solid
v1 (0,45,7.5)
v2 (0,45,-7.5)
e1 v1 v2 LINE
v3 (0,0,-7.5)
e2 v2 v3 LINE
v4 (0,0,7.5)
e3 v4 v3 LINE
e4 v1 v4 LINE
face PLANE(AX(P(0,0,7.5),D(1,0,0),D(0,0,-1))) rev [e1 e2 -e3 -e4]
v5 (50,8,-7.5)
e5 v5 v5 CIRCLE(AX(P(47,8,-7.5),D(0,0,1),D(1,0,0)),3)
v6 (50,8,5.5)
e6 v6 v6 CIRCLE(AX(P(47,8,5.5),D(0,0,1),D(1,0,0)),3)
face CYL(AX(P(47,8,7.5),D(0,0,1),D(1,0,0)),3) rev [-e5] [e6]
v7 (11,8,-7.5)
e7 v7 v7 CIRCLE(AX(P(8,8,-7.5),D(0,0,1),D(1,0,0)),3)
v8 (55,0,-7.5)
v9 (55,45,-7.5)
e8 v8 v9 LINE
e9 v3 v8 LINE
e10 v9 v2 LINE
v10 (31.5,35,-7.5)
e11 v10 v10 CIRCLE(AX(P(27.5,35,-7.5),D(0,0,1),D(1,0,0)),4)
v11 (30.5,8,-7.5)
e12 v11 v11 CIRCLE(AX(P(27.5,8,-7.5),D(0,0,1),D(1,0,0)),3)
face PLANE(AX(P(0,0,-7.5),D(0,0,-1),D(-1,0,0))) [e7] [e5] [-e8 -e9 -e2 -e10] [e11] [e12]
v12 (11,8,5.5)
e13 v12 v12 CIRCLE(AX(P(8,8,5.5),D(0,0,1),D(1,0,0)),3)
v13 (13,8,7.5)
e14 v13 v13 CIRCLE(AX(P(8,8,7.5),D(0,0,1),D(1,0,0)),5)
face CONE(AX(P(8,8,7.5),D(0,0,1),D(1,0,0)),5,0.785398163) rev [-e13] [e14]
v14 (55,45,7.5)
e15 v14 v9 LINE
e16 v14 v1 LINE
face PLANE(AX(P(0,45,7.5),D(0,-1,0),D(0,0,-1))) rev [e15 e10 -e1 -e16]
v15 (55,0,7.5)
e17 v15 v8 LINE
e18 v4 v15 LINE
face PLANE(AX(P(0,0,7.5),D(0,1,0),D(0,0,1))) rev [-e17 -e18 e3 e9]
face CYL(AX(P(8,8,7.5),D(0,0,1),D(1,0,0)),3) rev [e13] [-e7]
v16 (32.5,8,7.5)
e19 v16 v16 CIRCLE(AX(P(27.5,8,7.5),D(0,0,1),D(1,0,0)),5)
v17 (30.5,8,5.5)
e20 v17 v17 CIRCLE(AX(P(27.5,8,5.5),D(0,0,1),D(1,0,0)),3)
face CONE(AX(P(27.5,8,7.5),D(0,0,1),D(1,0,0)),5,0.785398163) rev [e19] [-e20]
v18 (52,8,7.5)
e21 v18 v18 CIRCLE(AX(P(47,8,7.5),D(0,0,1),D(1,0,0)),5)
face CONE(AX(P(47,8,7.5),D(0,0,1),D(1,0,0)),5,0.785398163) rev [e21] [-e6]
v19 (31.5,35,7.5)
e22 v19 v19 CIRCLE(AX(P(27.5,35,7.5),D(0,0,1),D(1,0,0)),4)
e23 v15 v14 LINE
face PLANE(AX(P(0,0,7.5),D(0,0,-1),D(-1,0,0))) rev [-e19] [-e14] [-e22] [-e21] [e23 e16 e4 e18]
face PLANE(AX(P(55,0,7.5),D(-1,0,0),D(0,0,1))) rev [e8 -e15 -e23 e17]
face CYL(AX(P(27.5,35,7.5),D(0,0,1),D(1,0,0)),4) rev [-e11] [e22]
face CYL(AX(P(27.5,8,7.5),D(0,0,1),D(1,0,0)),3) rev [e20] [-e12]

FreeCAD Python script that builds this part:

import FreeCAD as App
import Part
import Sketcher

V = App.Vector


def add_polygon(sketch, points):
    """Adds a closed chain of lines whose ends are joined by coincident constraints."""
    first, n = sketch.GeometryCount, len(points)
    for a, b in zip(points, points[1:] + points[:1]):
        sketch.addGeometry(Part.LineSegment(App.Vector(*a, 0), App.Vector(*b, 0)), False)
    for i in range(n):
        sketch.addConstraint(Sketcher.Constraint("Coincident", first + i, 2, first + (i + 1) % n, 1))

doc = App.newDocument("Part")
body = doc.addObject("PartDesign::Body", "Body")

sketch1 = doc.addObject("Sketcher::SketchObject", "Sketch")
body.addObject(sketch1)
sketch1.AttachmentSupport = (doc.XY_Plane, [""])
sketch1.MapMode = "FlatFace"
add_polygon(sketch1, [(0, 45), (0, 0), (55, 0), (55, 45)])
sketch1.addConstraint([
    Sketcher.Constraint("Vertical", 0),
    Sketcher.Constraint("Horizontal", 1),
    Sketcher.Constraint("Vertical", 2),
    Sketcher.Constraint("Horizontal", 3),
    Sketcher.Constraint("Coincident", 0, 2, -1, 1),
    Sketcher.Constraint("DistanceX", 1, 1, 1, 2, 55.0),
    Sketcher.Constraint("DistanceY", 0, 2, 0, 1, 45.0),
])
pad1 = doc.addObject("PartDesign::Pad", "Pad")
body.addObject(pad1)
pad1.Profile = sketch1
pad1.Length = 15
pad1.Midplane = True

sketch2 = doc.addObject("Sketcher::SketchObject", "Sketch001")
body.addObject(sketch2)
sketch2.AttachmentSupport = (doc.XY_Plane, [""])
sketch2.MapMode = "FlatFace"
sketch2.AttachmentOffset = App.Placement(V(0, 0, 7.5), App.Rotation())
sketch2.addGeometry([
    Part.Circle(V(8, 8, 0), V(0, 0, 1), 3),
    Part.Circle(V(27.5, 8, 0), V(0, 0, 1), 3),
    Part.Circle(V(47, 8, 0), V(0, 0, 1), 3),
], False)
sketch2.addConstraint([
    Sketcher.Constraint("Equal", 0, 1),
    Sketcher.Constraint("Equal", 1, 2),
    Sketcher.Constraint("Horizontal", 0, 3, 1, 3),
    Sketcher.Constraint("Horizontal", 1, 3, 2, 3),
    Sketcher.Constraint("Diameter", 0, 6.0),
    Sketcher.Constraint("DistanceX", -1, 1, 0, 3, 8.0),
    Sketcher.Constraint("DistanceY", -1, 1, 0, 3, 8.0),
    Sketcher.Constraint("DistanceX", -1, 1, 2, 3, 47.0),
    Sketcher.Constraint("DistanceX", -1, 1, 1, 3, 27.5),
])
doc.recompute()
hole = doc.addObject("PartDesign::Hole", "Hole")
body.addObject(hole)
hole.Profile = sketch2
hole.ThreadType = "None"
hole.Diameter = 6
hole.DepthType = "ThroughAll"
hole.HoleCutType = "Countersink"
hole.HoleCutDiameter = 10
hole.HoleCutCountersinkAngle = 90

sketch3 = doc.addObject("Sketcher::SketchObject", "Sketch002")
body.addObject(sketch3)
sketch3.AttachmentSupport = (doc.XY_Plane, [""])
sketch3.MapMode = "FlatFace"
sketch3.AttachmentOffset = App.Placement(V(0, 0, 7.5), App.Rotation())
sketch3.addGeometry(Part.Circle(V(27.5, 35, 0), V(0, 0, 1), 4), False)
sketch3.addConstraint([
    Sketcher.Constraint("Diameter", 0, 8.0),
    Sketcher.Constraint("DistanceY", -1, 1, 0, 3, 35.0),
    Sketcher.Constraint("DistanceX", -1, 1, 0, 3, 27.5),
])
doc.recompute()
hole2 = doc.addObject("PartDesign::Hole", "Hole001")
body.addObject(hole2)
hole2.Profile = sketch3
hole2.ThreadType = "None"
hole2.Diameter = 8
hole2.DepthType = "ThroughAll"

doc.recompute()
